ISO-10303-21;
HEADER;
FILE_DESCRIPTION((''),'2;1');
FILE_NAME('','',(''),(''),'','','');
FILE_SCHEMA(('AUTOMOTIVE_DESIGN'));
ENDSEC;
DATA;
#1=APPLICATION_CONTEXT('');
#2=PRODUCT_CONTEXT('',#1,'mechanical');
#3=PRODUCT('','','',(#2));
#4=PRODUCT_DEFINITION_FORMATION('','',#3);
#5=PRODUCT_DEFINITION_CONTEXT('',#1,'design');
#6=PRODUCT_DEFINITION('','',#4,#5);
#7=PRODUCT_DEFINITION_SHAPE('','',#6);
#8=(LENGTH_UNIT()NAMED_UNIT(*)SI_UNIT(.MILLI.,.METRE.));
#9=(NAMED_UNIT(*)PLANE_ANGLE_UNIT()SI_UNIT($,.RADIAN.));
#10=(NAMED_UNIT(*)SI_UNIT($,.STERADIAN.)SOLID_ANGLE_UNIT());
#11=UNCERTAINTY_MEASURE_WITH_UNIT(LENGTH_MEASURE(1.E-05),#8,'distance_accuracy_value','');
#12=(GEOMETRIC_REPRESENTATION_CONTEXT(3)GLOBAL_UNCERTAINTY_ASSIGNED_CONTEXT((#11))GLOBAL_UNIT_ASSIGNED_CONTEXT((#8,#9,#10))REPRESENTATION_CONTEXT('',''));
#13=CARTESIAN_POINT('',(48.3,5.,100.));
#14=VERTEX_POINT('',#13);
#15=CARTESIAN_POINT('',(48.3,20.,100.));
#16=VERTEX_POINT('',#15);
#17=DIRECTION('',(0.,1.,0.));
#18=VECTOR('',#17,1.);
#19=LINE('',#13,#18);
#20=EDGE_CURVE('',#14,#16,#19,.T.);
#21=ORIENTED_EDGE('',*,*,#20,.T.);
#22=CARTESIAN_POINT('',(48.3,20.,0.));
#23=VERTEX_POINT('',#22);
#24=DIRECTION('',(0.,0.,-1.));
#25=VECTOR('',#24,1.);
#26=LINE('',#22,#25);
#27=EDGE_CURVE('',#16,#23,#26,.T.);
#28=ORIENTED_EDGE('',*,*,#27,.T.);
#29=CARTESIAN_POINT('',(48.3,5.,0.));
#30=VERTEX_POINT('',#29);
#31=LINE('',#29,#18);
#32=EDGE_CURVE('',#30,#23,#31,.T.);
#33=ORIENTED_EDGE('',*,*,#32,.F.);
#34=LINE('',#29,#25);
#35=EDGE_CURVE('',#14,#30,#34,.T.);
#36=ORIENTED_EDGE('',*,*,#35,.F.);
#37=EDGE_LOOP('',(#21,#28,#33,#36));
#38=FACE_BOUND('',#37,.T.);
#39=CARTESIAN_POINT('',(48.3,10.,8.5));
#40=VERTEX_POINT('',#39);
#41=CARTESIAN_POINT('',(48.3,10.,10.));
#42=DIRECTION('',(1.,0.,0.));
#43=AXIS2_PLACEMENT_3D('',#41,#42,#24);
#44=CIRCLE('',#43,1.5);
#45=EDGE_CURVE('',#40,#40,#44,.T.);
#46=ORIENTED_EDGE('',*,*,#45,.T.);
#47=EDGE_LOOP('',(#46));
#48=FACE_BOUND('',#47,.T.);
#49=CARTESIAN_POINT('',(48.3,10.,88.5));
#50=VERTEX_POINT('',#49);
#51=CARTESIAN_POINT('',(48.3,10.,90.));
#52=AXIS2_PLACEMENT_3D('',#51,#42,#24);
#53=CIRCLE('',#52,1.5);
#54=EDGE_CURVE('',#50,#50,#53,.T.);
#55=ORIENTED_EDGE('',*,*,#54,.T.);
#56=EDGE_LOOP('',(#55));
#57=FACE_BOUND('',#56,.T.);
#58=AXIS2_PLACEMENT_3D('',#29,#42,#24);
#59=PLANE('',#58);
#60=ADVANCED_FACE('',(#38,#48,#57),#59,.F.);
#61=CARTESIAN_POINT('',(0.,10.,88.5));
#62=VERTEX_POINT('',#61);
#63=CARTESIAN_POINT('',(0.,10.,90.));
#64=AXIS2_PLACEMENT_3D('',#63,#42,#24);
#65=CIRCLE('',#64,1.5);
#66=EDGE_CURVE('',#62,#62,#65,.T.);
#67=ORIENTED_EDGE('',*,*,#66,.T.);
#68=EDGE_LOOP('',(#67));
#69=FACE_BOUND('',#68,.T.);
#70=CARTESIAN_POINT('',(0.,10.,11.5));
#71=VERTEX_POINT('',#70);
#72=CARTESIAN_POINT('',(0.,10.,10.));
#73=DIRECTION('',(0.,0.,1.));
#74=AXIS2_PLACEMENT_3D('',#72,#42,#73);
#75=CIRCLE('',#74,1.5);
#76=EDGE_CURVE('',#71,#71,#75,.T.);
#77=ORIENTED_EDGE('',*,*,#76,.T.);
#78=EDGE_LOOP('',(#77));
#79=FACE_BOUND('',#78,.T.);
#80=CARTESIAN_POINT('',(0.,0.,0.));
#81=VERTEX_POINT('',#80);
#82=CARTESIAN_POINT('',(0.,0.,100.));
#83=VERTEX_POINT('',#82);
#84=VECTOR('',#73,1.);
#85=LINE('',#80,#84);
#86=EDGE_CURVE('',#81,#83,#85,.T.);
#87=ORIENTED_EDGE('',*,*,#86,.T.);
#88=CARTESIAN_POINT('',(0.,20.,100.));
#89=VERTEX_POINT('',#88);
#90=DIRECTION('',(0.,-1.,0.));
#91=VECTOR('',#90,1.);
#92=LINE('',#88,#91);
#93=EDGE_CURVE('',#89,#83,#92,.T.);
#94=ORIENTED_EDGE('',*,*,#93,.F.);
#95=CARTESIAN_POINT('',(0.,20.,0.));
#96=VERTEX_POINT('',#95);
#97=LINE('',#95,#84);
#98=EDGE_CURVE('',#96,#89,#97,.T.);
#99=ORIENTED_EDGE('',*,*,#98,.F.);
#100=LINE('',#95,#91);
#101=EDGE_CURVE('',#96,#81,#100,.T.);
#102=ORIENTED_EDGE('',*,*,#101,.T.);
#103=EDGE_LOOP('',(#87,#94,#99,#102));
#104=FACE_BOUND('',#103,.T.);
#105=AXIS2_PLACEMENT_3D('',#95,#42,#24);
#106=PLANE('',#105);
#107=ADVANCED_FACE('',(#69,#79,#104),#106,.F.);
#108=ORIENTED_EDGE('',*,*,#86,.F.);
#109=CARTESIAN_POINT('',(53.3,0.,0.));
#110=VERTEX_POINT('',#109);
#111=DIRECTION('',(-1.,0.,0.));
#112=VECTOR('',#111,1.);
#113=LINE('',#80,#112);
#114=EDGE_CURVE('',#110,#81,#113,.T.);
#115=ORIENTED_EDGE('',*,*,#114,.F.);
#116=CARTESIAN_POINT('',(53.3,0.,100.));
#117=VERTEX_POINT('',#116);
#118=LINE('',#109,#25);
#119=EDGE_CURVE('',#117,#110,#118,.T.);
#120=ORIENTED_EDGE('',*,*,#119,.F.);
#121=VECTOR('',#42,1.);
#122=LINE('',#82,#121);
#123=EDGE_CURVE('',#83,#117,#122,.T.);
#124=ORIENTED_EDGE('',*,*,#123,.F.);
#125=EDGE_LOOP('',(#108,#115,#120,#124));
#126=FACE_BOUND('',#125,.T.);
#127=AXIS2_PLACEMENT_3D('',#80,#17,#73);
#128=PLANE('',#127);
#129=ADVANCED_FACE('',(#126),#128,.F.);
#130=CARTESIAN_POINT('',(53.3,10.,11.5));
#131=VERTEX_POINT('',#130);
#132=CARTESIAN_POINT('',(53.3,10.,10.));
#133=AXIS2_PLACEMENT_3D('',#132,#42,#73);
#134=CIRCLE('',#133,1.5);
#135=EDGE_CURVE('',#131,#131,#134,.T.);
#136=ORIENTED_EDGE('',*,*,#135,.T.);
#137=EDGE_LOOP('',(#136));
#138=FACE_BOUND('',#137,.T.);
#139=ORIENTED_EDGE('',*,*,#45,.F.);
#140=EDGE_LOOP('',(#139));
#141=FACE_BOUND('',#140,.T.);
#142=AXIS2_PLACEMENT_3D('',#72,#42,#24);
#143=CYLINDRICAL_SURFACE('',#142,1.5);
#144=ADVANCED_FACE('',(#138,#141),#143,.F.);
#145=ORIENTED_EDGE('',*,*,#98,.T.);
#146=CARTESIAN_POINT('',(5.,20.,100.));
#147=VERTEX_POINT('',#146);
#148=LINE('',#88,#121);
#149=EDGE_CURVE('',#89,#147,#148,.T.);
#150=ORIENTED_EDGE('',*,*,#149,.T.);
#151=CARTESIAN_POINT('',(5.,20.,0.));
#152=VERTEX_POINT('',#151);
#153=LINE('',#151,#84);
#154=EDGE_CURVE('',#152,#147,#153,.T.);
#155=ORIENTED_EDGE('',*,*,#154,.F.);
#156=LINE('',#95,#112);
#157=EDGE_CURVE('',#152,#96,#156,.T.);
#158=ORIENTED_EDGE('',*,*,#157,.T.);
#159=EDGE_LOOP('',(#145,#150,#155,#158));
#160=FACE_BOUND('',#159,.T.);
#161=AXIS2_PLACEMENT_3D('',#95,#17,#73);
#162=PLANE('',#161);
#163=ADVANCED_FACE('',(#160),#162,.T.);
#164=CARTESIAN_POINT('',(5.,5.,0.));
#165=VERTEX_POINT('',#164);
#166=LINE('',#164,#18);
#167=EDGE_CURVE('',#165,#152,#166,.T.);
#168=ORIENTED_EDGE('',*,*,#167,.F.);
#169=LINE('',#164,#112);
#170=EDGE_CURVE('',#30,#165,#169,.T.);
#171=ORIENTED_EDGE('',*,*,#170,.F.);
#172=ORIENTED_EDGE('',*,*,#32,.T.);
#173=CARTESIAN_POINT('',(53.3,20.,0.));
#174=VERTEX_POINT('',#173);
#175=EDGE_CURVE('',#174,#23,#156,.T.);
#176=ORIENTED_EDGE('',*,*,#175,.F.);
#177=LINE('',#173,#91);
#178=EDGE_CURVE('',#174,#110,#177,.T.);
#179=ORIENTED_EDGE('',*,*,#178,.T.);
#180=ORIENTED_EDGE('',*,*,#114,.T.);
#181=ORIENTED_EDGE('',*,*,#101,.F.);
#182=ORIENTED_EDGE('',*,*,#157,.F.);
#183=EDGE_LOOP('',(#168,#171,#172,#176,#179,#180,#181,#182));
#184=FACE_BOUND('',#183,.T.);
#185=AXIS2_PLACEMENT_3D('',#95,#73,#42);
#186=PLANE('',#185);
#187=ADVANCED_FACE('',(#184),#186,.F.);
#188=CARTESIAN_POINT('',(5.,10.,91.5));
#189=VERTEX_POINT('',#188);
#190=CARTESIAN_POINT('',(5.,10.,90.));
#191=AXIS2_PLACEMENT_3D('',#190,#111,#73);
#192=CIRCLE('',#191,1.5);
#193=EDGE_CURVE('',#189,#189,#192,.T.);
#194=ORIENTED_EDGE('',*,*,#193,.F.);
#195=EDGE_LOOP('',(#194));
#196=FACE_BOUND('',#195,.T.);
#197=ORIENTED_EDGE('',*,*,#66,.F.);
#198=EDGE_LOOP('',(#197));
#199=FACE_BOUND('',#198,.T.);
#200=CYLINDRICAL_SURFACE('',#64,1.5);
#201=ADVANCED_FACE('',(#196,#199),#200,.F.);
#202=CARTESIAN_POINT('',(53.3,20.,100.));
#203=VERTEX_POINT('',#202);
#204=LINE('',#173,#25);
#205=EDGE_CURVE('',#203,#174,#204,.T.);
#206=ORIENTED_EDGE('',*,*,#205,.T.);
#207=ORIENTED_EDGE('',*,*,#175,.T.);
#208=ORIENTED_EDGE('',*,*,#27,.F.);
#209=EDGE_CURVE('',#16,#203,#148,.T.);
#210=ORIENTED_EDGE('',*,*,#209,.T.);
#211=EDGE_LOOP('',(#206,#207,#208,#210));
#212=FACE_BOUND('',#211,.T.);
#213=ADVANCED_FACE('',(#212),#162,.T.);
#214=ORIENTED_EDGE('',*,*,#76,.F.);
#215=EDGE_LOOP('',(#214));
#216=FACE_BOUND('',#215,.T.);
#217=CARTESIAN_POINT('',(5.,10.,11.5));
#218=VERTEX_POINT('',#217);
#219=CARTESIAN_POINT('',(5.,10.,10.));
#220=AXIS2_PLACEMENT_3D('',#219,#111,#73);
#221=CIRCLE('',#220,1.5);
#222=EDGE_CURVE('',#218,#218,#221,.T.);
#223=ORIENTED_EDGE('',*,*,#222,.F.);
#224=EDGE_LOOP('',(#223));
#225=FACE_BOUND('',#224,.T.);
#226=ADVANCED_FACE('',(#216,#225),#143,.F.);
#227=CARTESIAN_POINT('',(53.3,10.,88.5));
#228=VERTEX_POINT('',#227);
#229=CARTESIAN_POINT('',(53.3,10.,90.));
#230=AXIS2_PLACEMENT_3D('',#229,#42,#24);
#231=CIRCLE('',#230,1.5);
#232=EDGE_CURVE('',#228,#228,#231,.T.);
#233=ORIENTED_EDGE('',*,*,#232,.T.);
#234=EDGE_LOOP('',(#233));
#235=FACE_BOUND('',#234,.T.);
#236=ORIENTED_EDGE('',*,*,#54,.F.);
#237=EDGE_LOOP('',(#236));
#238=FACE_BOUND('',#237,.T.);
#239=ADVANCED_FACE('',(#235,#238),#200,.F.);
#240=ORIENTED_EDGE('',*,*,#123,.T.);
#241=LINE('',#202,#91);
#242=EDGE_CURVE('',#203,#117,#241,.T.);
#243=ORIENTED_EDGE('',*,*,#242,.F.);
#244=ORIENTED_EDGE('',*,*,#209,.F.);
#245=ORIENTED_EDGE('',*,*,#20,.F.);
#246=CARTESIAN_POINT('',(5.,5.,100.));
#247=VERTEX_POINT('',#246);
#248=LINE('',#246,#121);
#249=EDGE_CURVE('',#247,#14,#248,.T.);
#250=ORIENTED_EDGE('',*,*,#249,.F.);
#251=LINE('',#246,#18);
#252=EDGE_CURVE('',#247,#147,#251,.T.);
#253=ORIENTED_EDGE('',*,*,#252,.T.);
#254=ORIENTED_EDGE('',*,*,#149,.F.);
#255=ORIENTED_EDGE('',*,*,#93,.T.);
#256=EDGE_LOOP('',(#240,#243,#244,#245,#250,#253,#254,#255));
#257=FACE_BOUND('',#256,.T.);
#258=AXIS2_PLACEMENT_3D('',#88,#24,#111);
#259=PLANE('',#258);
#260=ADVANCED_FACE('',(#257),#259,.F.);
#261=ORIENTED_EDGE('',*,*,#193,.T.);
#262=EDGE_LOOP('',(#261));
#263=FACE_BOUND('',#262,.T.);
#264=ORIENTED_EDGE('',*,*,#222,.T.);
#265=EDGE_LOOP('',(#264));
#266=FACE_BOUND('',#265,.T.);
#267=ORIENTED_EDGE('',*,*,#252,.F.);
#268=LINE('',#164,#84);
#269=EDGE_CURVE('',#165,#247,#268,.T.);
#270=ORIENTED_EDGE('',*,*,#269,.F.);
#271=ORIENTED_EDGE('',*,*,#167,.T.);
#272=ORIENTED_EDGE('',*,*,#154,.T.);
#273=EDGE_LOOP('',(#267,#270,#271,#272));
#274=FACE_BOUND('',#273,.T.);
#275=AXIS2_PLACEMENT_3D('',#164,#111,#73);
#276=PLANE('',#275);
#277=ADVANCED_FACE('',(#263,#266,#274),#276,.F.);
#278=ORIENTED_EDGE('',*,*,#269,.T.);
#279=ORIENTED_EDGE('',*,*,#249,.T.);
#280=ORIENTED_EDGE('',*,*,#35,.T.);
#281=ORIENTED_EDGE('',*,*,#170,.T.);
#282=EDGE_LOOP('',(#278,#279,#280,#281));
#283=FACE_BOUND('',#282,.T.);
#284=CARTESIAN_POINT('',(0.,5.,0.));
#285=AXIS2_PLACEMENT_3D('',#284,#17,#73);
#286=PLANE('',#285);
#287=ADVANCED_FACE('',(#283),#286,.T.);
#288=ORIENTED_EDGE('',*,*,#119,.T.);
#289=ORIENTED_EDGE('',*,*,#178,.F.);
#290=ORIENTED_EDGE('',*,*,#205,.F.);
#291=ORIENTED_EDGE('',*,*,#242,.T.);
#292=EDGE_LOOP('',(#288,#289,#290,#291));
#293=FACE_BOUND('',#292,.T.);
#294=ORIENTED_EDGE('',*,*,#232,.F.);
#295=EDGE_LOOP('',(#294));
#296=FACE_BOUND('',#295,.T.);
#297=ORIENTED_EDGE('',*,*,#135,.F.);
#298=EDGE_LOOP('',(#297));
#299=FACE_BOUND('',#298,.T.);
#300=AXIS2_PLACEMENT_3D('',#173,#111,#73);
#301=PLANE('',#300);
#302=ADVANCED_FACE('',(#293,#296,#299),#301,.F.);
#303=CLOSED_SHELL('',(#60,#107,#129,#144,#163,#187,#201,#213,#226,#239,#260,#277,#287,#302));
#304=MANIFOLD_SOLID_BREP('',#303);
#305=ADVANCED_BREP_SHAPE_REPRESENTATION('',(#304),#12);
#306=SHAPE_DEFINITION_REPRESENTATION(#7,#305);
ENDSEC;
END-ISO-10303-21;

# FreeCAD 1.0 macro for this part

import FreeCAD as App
import Part
import Sketcher
from FreeCAD import Vector


def add_polygon(sketch, points):
    """Adds a closed chain of lines whose ends are joined by coincident constraints."""
    first, n = sketch.GeometryCount, len(points)
    for a, b in zip(points, points[1:] + points[:1]):
        sketch.addGeometry(Part.LineSegment(App.Vector(*a, 0), App.Vector(*b, 0)), False)
    for i in range(n):
        sketch.addConstraint(Sketcher.Constraint("Coincident", first + i, 2, first + (i + 1) % n, 1))

doc = App.newDocument("Part")
params = doc.addObject("Spreadsheet::Sheet", "Params")
for row, (alias, value) in enumerate([
    ("sketch1_height", "100 mm"),
    ("sketch1_width", "53.3 mm"),
    ("pad1_length", "20 mm"),
    ("sketch2_height", "100 mm"),
    ("sketch2_width", "43.3 mm"),
    ("pocket1_length", "15 mm"),
    ("sketch3_diameter", "3 mm"),
], start=1):
    params.set(f"A{row}", alias)
    params.set(f"B{row}", "=" + value)
    params.setAlias(f"B{row}", alias)

body = doc.addObject("PartDesign::Body", "Body")

# Sketch on XZ plane
sketch1 = body.newObject("Sketcher::SketchObject", "Sketch")
sketch1.AttachmentSupport = (doc.getObject("XZ_Plane"), [""])
sketch1.MapMode = "FlatFace"
add_polygon(sketch1, [(0, 0), (0, 100), (53, 100), (53, 0)])  # lines 0-3
sketch1.addConstraint(Sketcher.Constraint("Vertical", 0))
sketch1.addConstraint(Sketcher.Constraint("Horizontal", 1))
sketch1.addConstraint(Sketcher.Constraint("Vertical", 2))
sketch1.addConstraint(Sketcher.Constraint("Horizontal", 3))
sketch1.addConstraint(Sketcher.Constraint("Coincident", 3, 2, -1, 1))
sketch1.addConstraint(Sketcher.Constraint("DistanceY", 0, 1, 0, 2, 100.0))
sketch1.addConstraint(Sketcher.Constraint("DistanceX", 1, 1, 1, 2, 53.3))
sketch1.setExpression("Constraints[9]", "Params.sketch1_height")
sketch1.setExpression("Constraints[10]", "Params.sketch1_width")
pad1 = body.newObject("PartDesign::Pad", "Pad")
pad1.Profile = sketch1
pad1.setExpression("Length", "Params.pad1_length")
pad1.Reversed = True

# Sketch on XZ plane
sketch2 = body.newObject("Sketcher::SketchObject", "Sketch001")
sketch2.AttachmentSupport = (doc.getObject("XZ_Plane"), [""])
sketch2.MapMode = "FlatFace"
sketch2.AttachmentOffset = App.Placement(Vector(0, 0, -20), App.Rotation())
add_polygon(sketch2, [(5, 0), (5, 100), (48, 100), (48, 0)])  # lines 0-3
sketch2.addConstraint(Sketcher.Constraint("Vertical", 0))
sketch2.addConstraint(Sketcher.Constraint("Horizontal", 1))
sketch2.addConstraint(Sketcher.Constraint("Vertical", 2))
sketch2.addConstraint(Sketcher.Constraint("Horizontal", 3))
sketch2.addConstraint(Sketcher.Constraint("PointOnObject", 2, 2, -1))
sketch2.addConstraint(Sketcher.Constraint("DistanceY", 0, 1, 0, 2, 100.0))
sketch2.addConstraint(Sketcher.Constraint("DistanceX", 1, 1, 1, 2, 43.3))
sketch2.addConstraint(Sketcher.Constraint("DistanceX", -1, 1, 0, 2, 5.0))
sketch2.setExpression("Constraints[9]", "Params.sketch2_height")
sketch2.setExpression("Constraints[10]", "Params.sketch2_width")
pocket1 = body.newObject("PartDesign::Pocket", "Pocket")
pocket1.Profile = sketch2
pocket1.setExpression("Length", "Params.pocket1_length")
pocket1.Reversed = True

# Sketch on YZ plane
sketch3 = body.newObject("Sketcher::SketchObject", "Sketch002")
sketch3.AttachmentSupport = (doc.getObject("YZ_Plane"), [""])
sketch3.MapMode = "FlatFace"
sketch3.AttachmentOffset = App.Placement(Vector(0, 0, 53.3), App.Rotation())
sketch3.addGeometry(Part.Circle(Vector(10, 90, 0), Vector(0, 0, 1), 1.5), False)
sketch3.addGeometry(Part.Circle(Vector(10, 10, 0), Vector(0, 0, 1), 1.5), False)
sketch3.addConstraint(Sketcher.Constraint("Equal", 0, 1))
sketch3.addConstraint(Sketcher.Constraint("Vertical", 0, 3, 1, 3))
sketch3.addConstraint(Sketcher.Constraint("Diameter", 0, 3.0))
sketch3.addConstraint(Sketcher.Constraint("DistanceX", -1, 1, 0, 3, 10.0))
sketch3.addConstraint(Sketcher.Constraint("DistanceY", -1, 1, 0, 3, 90.0))
sketch3.addConstraint(Sketcher.Constraint("DistanceY", -1, 1, 1, 3, 10.0))
sketch3.setExpression("Constraints[2]", "Params.sketch3_diameter")
pocket2 = body.newObject("PartDesign::Pocket", "Pocket001")
pocket2.Profile = sketch3
pocket2.Type = "ThroughAll"

doc.recompute()
